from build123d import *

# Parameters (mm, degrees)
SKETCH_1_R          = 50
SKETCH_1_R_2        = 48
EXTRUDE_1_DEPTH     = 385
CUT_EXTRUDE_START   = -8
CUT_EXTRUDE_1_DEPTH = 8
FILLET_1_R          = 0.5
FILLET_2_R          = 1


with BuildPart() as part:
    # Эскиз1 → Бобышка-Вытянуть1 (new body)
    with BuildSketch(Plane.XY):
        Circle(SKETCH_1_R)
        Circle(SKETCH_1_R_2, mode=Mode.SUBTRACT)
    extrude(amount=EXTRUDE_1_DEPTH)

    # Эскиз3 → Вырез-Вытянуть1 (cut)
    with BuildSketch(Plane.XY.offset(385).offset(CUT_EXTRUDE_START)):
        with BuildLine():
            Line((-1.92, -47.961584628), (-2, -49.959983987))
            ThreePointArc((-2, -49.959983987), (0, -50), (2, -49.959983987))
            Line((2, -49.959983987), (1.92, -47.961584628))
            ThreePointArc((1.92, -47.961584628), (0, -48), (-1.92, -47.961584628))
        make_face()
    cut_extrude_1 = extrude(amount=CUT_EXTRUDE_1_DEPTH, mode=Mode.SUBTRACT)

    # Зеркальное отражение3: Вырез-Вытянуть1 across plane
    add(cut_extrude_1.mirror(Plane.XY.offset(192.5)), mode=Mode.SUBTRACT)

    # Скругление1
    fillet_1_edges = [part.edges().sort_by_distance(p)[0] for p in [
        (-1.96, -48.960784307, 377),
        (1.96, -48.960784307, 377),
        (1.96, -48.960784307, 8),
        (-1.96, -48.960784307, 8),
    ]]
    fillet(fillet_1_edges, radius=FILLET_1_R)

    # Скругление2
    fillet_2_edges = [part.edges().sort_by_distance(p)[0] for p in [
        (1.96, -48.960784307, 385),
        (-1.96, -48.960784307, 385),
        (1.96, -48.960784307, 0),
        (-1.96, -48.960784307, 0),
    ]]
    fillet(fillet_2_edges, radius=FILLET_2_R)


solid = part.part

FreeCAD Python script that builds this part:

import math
import FreeCAD as App
import Part
import Sketcher
Q = App.Units.Quantity


def edges_at(feature, points):
    """Names of the edges that pass closest to the given points."""
    edges = feature.Shape.Edges
    near = lambda p: min(range(len(edges)), key=lambda i: edges[i].distToShape(Part.Vertex(*p))[0])
    return sorted({f"Edge{near(p) + 1}" for p in points})

doc = App.newDocument("Part")
body = doc.addObject("PartDesign::Body", "Body")

# Sketch on XY plane
sketch1 = doc.addObject("Sketcher::SketchObject", "Sketch")
body.addObject(sketch1)
sketch1.AttachmentSupport = (doc.XY_Plane, [""])
sketch1.MapMode = "FlatFace"
sketch1.addGeometry([
    Part.Circle(App.Vector(0, 0, 0), App.Vector(0, 0, 1), 50),
    Part.Circle(App.Vector(0, 0, 0), App.Vector(0, 0, 1), 48),
], False)
sketch1.addConstraint([
    Sketcher.Constraint("Coincident", 0, 3, -1, 1),
    Sketcher.Constraint("Coincident", 1, 3, -1, 1),
    Sketcher.Constraint("Diameter", 0, Q("100 mm")),
    Sketcher.Constraint("Diameter", 1, Q("96 mm")),
])
pad1 = doc.addObject("PartDesign::Pad", "Pad")
body.addObject(pad1)
pad1.Profile = sketch1
pad1.Length = 385

# Sketch on XY plane
sketch2 = doc.addObject("Sketcher::SketchObject", "Sketch001")
body.addObject(sketch2)
sketch2.AttachmentSupport = (doc.XY_Plane, [""])
sketch2.MapMode = "FlatFace"
sketch2.AttachmentOffset = App.Placement(App.Vector(0, 0, 377), App.Rotation())
sketch2.addGeometry([
    Part.LineSegment(App.Vector(-1.9, -48, 0), App.Vector(-2, -50, 0)),
    Part.ArcOfCircle(Part.Circle(App.Vector(0, 0, 0), App.Vector(0, 0, 1), 50), math.radians(-92.29), math.radians(-87.71)),
    Part.LineSegment(App.Vector(2, -50, 0), App.Vector(1.9, -48, 0)),
    Part.ArcOfCircle(Part.Circle(App.Vector(0, 0, 0), App.Vector(0, 0, 1), 48), math.radians(-92.29), math.radians(-87.71)),
], False)
sketch2.addConstraint([
    Sketcher.Constraint("Coincident", 0, 2, 1, 1),
    Sketcher.Constraint("Coincident", 1, 2, 2, 1),
    Sketcher.Constraint("Coincident", 2, 2, 3, 2),
    Sketcher.Constraint("Coincident", 3, 1, 0, 1),
    Sketcher.Constraint("Coincident", 1, 3, -1, 1),
    Sketcher.Constraint("Coincident", 3, 3, -1, 1),
    Sketcher.Constraint("Horizontal", 0, 2, 1, 2),
    Sketcher.Constraint("Horizontal", 2, 2, 3, 1),
    Sketcher.Constraint("Radius", 1, Q("50 mm")),
    Sketcher.Constraint("Radius", 3, Q("48 mm")),
    Sketcher.Constraint("DistanceX", 0, 2, -1, 1, Q("2 mm")),
    Sketcher.Constraint("DistanceX", -1, 1, 2, 2, Q("1.92 mm")),
])
pocket1 = doc.addObject("PartDesign::Pocket", "Pocket")
body.addObject(pocket1)
pocket1.Profile = sketch2
pocket1.Length = 8
pocket1.Reversed = True
doc.recompute()

datumplane = doc.addObject("PartDesign::Plane", "DatumPlane")
body.addObject(datumplane)
datumplane.AttachmentSupport = (doc.XY_Plane, [""])
datumplane.MapMode = "FlatFace"
datumplane.AttachmentOffset = App.Placement(App.Vector(0, 0, 192.5), App.Rotation())
mirrored = doc.addObject("PartDesign::Mirrored", "Mirrored")
body.addObject(mirrored)
mirrored.Originals = [pocket1]
mirrored.MirrorPlane = (datumplane, [""])
body.Tip = mirrored
doc.recompute()

fillet = doc.addObject("PartDesign::Fillet", "Fillet")
body.addObject(fillet)
fillet.Base = (mirrored, edges_at(mirrored, [
    (-1.96, -48.961, 377),
    (1.96, -48.961, 377),
    (1.96, -48.961, 8),
    (-1.96, -48.961, 8),
]))
fillet.Radius = 0.5
doc.recompute()

fillet2 = doc.addObject("PartDesign::Fillet", "Fillet001")
body.addObject(fillet2)
fillet2.Base = (fillet, edges_at(fillet, [
    (1.96, -48.961, 385),
    (-1.96, -48.961, 385),
    (1.96, -48.961, 0),
    (-1.96, -48.961, 0),
]))
fillet2.Radius = 1

doc.recompute()
